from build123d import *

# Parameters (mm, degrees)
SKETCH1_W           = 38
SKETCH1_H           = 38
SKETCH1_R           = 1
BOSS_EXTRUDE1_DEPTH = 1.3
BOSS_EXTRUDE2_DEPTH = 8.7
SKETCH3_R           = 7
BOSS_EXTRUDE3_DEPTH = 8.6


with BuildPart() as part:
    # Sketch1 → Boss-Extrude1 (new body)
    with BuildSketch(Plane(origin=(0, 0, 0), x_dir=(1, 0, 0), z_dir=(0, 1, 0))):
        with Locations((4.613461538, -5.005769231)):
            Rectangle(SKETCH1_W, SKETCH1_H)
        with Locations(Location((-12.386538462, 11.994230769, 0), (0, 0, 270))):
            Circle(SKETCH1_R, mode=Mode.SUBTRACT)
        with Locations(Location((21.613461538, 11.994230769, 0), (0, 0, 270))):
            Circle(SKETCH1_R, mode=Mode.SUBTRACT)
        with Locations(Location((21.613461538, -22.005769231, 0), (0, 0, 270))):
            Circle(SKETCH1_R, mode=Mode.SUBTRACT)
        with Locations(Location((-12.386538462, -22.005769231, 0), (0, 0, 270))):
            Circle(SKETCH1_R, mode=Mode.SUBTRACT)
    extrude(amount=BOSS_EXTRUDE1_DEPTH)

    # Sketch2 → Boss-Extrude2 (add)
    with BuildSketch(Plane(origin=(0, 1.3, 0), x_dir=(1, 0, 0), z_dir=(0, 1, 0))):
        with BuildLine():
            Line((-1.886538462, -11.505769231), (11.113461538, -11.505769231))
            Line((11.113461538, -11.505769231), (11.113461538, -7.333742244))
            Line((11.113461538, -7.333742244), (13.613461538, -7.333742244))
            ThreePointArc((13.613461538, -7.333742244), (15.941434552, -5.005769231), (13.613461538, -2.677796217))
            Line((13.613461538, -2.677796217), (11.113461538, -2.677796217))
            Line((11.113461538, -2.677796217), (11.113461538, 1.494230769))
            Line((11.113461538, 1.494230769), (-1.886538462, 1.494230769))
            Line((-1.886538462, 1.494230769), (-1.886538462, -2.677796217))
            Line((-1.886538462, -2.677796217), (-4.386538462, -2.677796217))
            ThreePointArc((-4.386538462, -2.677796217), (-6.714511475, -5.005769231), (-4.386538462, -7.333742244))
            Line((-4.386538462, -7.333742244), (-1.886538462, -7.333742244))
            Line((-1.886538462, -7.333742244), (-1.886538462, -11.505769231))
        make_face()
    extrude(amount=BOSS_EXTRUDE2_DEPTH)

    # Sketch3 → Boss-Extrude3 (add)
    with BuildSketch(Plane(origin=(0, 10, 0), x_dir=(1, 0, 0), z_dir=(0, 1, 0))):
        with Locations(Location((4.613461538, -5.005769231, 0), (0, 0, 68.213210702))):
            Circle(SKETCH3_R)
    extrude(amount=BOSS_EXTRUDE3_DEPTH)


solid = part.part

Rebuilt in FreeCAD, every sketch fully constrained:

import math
import FreeCAD as App
import Part
import Sketcher
Q = App.Units.Quantity

doc = App.newDocument("Part")
body = doc.addObject("PartDesign::Body", "Body")

# Sketch on XZ plane
sketch1 = body.newObject("Sketcher::SketchObject", "Sketch")
sketch1.AttachmentSupport = (doc.getObject("XZ_Plane"), [""])
sketch1.MapMode = "FlatFace"
sketch1.addGeometry([
    Part.LineSegment(App.Vector(-14.4, -14, 0), App.Vector(-14.4, 24, 0)),  # 0
    Part.LineSegment(App.Vector(-14.4, 24, 0), App.Vector(23.6, 24, 0)),  # 1
    Part.LineSegment(App.Vector(23.6, 24, 0), App.Vector(23.6, -14, 0)),  # 2
    Part.LineSegment(App.Vector(23.6, -14, 0), App.Vector(-14.4, -14, 0)),  # 3
    Part.Circle(App.Vector(-12.4, 22, 0), App.Vector(0, 0, 1), 1),  # 4
    Part.Circle(App.Vector(21.6, 22, 0), App.Vector(0, 0, 1), 1),  # 5
    Part.Circle(App.Vector(-12.4, -12, 0), App.Vector(0, 0, 1), 1),  # 6
    Part.Circle(App.Vector(21.6, -12, 0), App.Vector(0, 0, 1), 1),  # 7
], False)
sketch1.addConstraint([
    Sketcher.Constraint("Coincident", 0, 2, 1, 1),
    Sketcher.Constraint("Coincident", 1, 2, 2, 1),
    Sketcher.Constraint("Coincident", 2, 2, 3, 1),
    Sketcher.Constraint("Coincident", 3, 2, 0, 1),
    Sketcher.Constraint("Vertical", 0),
    Sketcher.Constraint("Horizontal", 1),
    Sketcher.Constraint("Vertical", 2),
    Sketcher.Constraint("Horizontal", 3),
    Sketcher.Constraint("Equal", 4, 5),
    Sketcher.Constraint("Equal", 5, 6),
    Sketcher.Constraint("Equal", 6, 7),
    Sketcher.Constraint("Horizontal", 4, 3, 5, 3),
    Sketcher.Constraint("Horizontal", 6, 3, 7, 3),
    Sketcher.Constraint("Vertical", 4, 3, 6, 3),
    Sketcher.Constraint("Vertical", 5, 3, 7, 3),
    Sketcher.Constraint("Equal", 3, 0),
    Sketcher.Constraint("Diameter", 4, Q("2 mm")),
    Sketcher.Constraint("DistanceX", 1, 1, 1, 2, Q("38 mm")),
    Sketcher.Constraint("DistanceX", 4, 3, 5, 3, Q("34 mm")),
    Sketcher.Constraint("DistanceY", 6, 3, 4, 3, Q("34 mm")),
    Sketcher.Constraint("DistanceX", 0, 2, 4, 3, Q("2 mm")),
    Sketcher.Constraint("DistanceY", 4, 3, 0, 2, Q("2 mm")),
    Sketcher.Constraint("DistanceX", 4, 3, -1, 1, Q("12.386538 mm")),
    Sketcher.Constraint("DistanceY", -1, 1, 4, 3, Q("22.005769 mm")),
])
pad1 = body.newObject("PartDesign::Pad", "Pad")
pad1.Profile = sketch1
pad1.Length = 1.3
pad1.Reversed = True

# Sketch on XZ plane
sketch2 = body.newObject("Sketcher::SketchObject", "Sketch001")
sketch2.AttachmentSupport = (doc.getObject("XZ_Plane"), [""])
sketch2.MapMode = "FlatFace"
sketch2.AttachmentOffset = App.Placement(App.Vector(0, 0, -1.3), App.Rotation())
sketch2.addGeometry([
    Part.LineSegment(App.Vector(-1.9, 11.5, 0), App.Vector(11.1, 11.5, 0)),  # 0
    Part.LineSegment(App.Vector(11.1, 11.5, 0), App.Vector(11.1, 7.3, 0)),  # 1
    Part.LineSegment(App.Vector(11.1, 7.3, 0), App.Vector(13.6, 7.3, 0)),  # 2
    Part.ArcOfCircle(Part.Circle(App.Vector(13.6, 5, 0), App.Vector(0, 0, 1), 2.3), math.radians(-90), math.radians(90)),  # 3
    Part.LineSegment(App.Vector(13.6, 2.7, 0), App.Vector(11.1, 2.7, 0)),  # 4
    Part.LineSegment(App.Vector(11.1, 2.7, 0), App.Vector(11.1, -1.5, 0)),  # 5
    Part.LineSegment(App.Vector(11.1, -1.5, 0), App.Vector(-1.9, -1.5, 0)),  # 6
    Part.LineSegment(App.Vector(-1.9, -1.5, 0), App.Vector(-1.9, 2.7, 0)),  # 7
    Part.LineSegment(App.Vector(-1.9, 2.7, 0), App.Vector(-4.4, 2.7, 0)),  # 8
    Part.ArcOfCircle(Part.Circle(App.Vector(-4.4, 5, 0), App.Vector(0, 0, 1), 2.3), math.radians(90), math.radians(270)),  # 9
    Part.LineSegment(App.Vector(-4.4, 7.3, 0), App.Vector(-1.9, 7.3, 0)),  # 10
    Part.LineSegment(App.Vector(-1.9, 7.3, 0), App.Vector(-1.9, 11.5, 0)),  # 11
], False)
sketch2.addConstraint([
    Sketcher.Constraint("Coincident", 0, 2, 1, 1),
    Sketcher.Constraint("Coincident", 1, 2, 2, 1),
    Sketcher.Constraint("Tangent", 2, 2, 3, 2),
    Sketcher.Constraint("Tangent", 3, 1, 4, 1),
    Sketcher.Constraint("Coincident", 4, 2, 5, 1),
    Sketcher.Constraint("Coincident", 5, 2, 6, 1),
    Sketcher.Constraint("Coincident", 6, 2, 7, 1),
    Sketcher.Constraint("Coincident", 7, 2, 8, 1),
    Sketcher.Constraint("Tangent", 8, 2, 9, 2),
    Sketcher.Constraint("Tangent", 9, 1, 10, 1),
    Sketcher.Constraint("Coincident", 10, 2, 11, 1),
    Sketcher.Constraint("Coincident", 11, 2, 0, 1),
    Sketcher.Constraint("Horizontal", 0),
    Sketcher.Constraint("Vertical", 1),
    Sketcher.Constraint("Horizontal", 2),
    Sketcher.Constraint("Horizontal", 4),
    Sketcher.Constraint("Vertical", 5),
    Sketcher.Constraint("Horizontal", 6),
    Sketcher.Constraint("Vertical", 7),
    Sketcher.Constraint("Horizontal", 8),
    Sketcher.Constraint("Horizontal", 10),
    Sketcher.Constraint("Vertical", 11),
    Sketcher.Constraint("Equal", 3, 9),
    Sketcher.Constraint("Horizontal", 3, 3, 9, 3),
    Sketcher.Constraint("Vertical", 1, 2, 4, 2),
    Sketcher.Constraint("Vertical", 7, 2, 10, 2),
    Sketcher.Constraint("Equal", 4, 8),
    Sketcher.Constraint("Equal", 1, 5),
    Sketcher.Constraint("DistanceX", 0, 1, 0, 2, Q("13 mm")),
    Sketcher.Constraint("DistanceX", 2, 1, 2, 2, Q("2.5 mm")),
    Sketcher.Constraint("DistanceY", 3, 3, 0, 2, Q("6.5 mm")),
    Sketcher.Constraint("Radius", 3, Q("2.327973 mm")),
    Sketcher.Constraint("DistanceX", -1, 1, 3, 3, Q("13.613462 mm")),
    Sketcher.Constraint("DistanceY", -1, 1, 3, 3, Q("5.005769 mm")),
])
pad2 = body.newObject("PartDesign::Pad", "Pad001")
pad2.Profile = sketch2
pad2.Length = 8.7
pad2.Reversed = True

# Sketch on XZ plane
sketch3 = body.newObject("Sketcher::SketchObject", "Sketch002")
sketch3.AttachmentSupport = (doc.getObject("XZ_Plane"), [""])
sketch3.MapMode = "FlatFace"
sketch3.AttachmentOffset = App.Placement(App.Vector(0, 0, -10), App.Rotation())
sketch3.addGeometry(Part.Circle(App.Vector(5, 5, 0), App.Vector(0, 0, 1), 7), False)
sketch3.addConstraint([
    Sketcher.Constraint("Diameter", 0, Q("14 mm")),
    Sketcher.Constraint("DistanceX", -1, 1, 0, 3, Q("4.613462 mm")),
    Sketcher.Constraint("DistanceY", -1, 1, 0, 3, Q("5.005769 mm")),
])
pad3 = body.newObject("PartDesign::Pad", "Pad002")
pad3.Profile = sketch3
pad3.Length = 8.6
pad3.Reversed = True

doc.recompute()
